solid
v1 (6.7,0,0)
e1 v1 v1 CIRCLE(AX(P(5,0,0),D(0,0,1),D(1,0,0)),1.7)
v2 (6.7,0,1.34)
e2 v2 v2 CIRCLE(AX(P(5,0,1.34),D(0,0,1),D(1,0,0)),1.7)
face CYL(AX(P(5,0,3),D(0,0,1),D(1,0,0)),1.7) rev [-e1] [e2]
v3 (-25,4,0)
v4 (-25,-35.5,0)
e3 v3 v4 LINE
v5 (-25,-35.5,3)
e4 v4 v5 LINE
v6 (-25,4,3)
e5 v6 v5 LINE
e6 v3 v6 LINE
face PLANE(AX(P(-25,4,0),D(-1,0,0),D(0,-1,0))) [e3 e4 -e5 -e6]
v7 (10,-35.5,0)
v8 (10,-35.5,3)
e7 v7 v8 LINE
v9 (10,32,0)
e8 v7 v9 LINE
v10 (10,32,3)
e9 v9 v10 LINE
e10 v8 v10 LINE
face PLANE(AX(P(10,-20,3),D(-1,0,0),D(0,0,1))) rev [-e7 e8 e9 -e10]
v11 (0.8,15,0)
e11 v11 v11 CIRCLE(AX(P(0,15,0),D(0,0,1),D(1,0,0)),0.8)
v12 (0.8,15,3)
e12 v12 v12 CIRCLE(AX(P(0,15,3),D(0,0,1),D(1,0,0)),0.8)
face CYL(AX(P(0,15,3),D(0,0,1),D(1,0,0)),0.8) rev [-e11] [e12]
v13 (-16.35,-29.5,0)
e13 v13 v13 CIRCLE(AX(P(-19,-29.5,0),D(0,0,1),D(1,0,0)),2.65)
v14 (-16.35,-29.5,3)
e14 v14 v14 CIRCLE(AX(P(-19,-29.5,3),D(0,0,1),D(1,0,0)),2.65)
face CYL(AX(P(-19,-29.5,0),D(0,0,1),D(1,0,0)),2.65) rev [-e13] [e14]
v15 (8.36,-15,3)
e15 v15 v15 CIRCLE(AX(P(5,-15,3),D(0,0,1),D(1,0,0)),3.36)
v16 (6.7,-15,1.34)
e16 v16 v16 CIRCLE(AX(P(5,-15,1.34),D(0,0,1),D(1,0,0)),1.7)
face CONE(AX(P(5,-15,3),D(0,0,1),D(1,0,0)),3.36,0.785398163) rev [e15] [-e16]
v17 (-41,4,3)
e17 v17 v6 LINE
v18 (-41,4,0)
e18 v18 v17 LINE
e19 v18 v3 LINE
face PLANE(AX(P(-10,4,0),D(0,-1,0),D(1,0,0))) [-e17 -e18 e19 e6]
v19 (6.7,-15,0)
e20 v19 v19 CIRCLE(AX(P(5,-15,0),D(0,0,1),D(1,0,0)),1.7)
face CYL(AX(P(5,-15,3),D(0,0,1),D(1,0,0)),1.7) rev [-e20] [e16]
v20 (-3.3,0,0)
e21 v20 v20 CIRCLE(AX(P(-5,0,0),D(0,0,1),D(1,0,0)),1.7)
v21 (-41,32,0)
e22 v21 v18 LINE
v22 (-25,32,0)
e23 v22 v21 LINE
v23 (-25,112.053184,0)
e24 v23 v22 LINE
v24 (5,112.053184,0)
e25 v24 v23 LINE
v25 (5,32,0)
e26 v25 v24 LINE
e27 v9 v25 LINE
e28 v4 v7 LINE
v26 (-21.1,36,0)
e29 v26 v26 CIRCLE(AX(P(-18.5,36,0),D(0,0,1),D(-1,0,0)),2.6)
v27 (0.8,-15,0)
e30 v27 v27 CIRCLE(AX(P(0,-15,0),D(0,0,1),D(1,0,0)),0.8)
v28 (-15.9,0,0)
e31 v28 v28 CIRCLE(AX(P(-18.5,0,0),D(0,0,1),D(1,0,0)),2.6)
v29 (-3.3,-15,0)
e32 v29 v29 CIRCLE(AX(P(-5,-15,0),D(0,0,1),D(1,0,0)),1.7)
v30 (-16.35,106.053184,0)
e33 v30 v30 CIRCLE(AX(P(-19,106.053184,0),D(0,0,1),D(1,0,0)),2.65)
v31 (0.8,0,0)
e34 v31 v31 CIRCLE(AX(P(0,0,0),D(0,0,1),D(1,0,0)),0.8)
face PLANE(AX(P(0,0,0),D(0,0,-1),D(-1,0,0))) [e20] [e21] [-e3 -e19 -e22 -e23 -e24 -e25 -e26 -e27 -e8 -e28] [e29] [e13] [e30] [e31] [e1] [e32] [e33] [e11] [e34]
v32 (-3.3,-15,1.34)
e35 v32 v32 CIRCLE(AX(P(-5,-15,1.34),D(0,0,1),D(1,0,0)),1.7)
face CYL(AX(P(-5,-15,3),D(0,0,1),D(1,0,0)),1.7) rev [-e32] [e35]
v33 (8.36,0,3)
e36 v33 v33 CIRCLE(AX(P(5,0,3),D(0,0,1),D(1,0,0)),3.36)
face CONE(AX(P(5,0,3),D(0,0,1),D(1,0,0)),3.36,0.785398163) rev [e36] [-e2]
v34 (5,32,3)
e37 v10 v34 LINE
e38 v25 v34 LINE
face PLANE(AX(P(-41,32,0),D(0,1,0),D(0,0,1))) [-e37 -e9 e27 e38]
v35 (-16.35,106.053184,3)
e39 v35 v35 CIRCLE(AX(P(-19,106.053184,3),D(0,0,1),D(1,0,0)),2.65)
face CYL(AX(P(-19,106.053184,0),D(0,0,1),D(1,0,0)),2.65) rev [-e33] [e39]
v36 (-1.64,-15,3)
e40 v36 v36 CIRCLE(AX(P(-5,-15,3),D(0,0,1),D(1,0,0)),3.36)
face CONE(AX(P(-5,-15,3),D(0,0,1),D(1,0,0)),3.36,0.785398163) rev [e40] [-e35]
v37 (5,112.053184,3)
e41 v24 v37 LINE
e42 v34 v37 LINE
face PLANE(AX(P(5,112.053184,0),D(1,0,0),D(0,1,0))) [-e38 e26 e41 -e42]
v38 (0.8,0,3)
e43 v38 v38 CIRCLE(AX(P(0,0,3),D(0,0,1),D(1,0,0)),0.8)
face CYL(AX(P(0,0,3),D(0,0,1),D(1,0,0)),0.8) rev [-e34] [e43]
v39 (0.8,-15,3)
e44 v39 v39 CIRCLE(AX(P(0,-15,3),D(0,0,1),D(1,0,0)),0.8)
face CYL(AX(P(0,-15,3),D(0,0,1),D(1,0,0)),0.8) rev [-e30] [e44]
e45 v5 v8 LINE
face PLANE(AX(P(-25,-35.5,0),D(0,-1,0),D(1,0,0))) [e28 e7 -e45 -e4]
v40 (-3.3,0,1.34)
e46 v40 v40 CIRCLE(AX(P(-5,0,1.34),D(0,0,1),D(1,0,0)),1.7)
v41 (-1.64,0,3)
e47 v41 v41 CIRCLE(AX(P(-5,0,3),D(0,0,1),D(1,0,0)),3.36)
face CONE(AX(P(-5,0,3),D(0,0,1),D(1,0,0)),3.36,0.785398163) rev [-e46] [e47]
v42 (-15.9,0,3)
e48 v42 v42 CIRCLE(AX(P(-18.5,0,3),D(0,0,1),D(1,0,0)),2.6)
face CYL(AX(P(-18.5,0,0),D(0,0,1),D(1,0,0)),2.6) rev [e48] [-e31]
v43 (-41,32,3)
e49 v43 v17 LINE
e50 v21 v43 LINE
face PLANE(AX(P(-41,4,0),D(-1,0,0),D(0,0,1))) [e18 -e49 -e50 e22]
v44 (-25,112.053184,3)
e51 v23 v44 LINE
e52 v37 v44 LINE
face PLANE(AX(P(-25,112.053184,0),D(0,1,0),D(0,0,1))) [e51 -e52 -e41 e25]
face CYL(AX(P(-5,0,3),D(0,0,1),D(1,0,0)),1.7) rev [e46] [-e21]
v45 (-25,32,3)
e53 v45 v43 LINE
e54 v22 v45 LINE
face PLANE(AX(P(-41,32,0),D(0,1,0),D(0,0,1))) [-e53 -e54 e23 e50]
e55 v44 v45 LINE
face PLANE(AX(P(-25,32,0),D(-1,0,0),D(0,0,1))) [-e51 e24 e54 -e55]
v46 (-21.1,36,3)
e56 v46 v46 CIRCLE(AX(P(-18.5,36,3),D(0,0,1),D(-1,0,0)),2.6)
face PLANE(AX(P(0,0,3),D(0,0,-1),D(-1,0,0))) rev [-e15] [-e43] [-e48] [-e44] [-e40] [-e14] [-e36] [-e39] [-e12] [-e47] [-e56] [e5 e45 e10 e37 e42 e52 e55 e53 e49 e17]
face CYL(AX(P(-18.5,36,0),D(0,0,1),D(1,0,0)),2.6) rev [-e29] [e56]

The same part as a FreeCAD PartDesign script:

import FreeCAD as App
import Part
import Sketcher

V = App.Vector
Q = App.Units.Quantity


def add_polygon(sketch, points):
    """Adds a closed chain of lines whose ends are joined by coincident constraints."""
    first, n = sketch.GeometryCount, len(points)
    for a, b in zip(points, points[1:] + points[:1]):
        sketch.addGeometry(Part.LineSegment(App.Vector(*a, 0), App.Vector(*b, 0)), False)
    for i in range(n):
        sketch.addConstraint(Sketcher.Constraint("Coincident", first + i, 2, first + (i + 1) % n, 1))

doc = App.newDocument("Part")
body = doc.addObject("PartDesign::Body", "Body")

sketch1 = body.newObject("Sketcher::SketchObject", "Sketch")
sketch1.AttachmentSupport = (doc.getObject("XY_Plane"), [""])
sketch1.MapMode = "FlatFace"
add_polygon(sketch1, [(-10, 20), (-10, -20), (10, -20), (10, 20)])
sketch1.addConstraint([
    Sketcher.Constraint("Vertical", 0),
    Sketcher.Constraint("Horizontal", 1),
    Sketcher.Constraint("Vertical", 2),
    Sketcher.Constraint("Horizontal", 3),
    Sketcher.Constraint("Symmetric", 0, 2, 2, 2, -1, 1),
    Sketcher.Constraint("DistanceX", 1, 1, 1, 2, 20.0),
    Sketcher.Constraint("DistanceY", 0, 2, 0, 1, 40.0),
])
pad1 = body.newObject("PartDesign::Pad", "Pad")
pad1.Profile = sketch1
pad1.Length = 3

sketch2 = body.newObject("Sketcher::SketchObject", "Sketch001")
sketch2.AttachmentSupport = (doc.getObject("YZ_Plane"), [""])
sketch2.MapMode = "FlatFace"
sketch2.AttachmentOffset = App.Placement(V(0, 0, -5), App.Rotation())
add_polygon(sketch2, [(0, 0), (0, 3), (-3.4, 3), (-1.7, 1.3), (-1.7, 0)])
sketch2.addConstraint([
    Sketcher.Constraint("Vertical", 0),
    Sketcher.Constraint("Horizontal", 1),
    Sketcher.Constraint("Vertical", 3),
    Sketcher.Constraint("Horizontal", 4),
    Sketcher.Constraint("Coincident", 4, 2, -1, 1),
    Sketcher.Constraint("DistanceY", 0, 1, 0, 2, 3.0),
    Sketcher.Constraint("Angle", 2, Q("-45 deg")),
    Sketcher.Constraint("DistanceX", 4, 1, 4, 2, 1.7),
    Sketcher.Constraint("DistanceX", 1, 2, 1, 1, 3.36),
])
groove = body.newObject("PartDesign::Groove", "Groove")
groove.Profile = sketch2
groove.ReferenceAxis = (sketch2, ["V_Axis"])
groove.Angle = 360
doc.recompute()

linearpattern = body.newObject("PartDesign::LinearPattern", "LinearPattern")
linearpattern.Originals = [groove]
linearpattern.Direction = (doc.getObject("X_Axis"), [""])
linearpattern.Mode = "offset"
linearpattern.Offset = 10
linearpattern.Occurrences = 2
body.Tip = linearpattern
doc.recompute()

datumline = body.newObject("PartDesign::Line", "DatumLine")
datumline.Placement = App.Placement(V(0, 0, 0), App.Rotation(V(0, 0, 1), V(0.554700196, -0.832050294, 0)))
linearpattern2 = body.newObject("PartDesign::LinearPattern", "LinearPattern001")
linearpattern2.Originals = [groove]
linearpattern2.Direction = (datumline, [""])
linearpattern2.Mode = "offset"
linearpattern2.Offset = 18.027756
linearpattern2.Occurrences = 2
body.Tip = linearpattern2
doc.recompute()

linearpattern3 = body.newObject("PartDesign::LinearPattern", "LinearPattern002")
linearpattern3.Originals = [groove]
linearpattern3.Direction = (doc.getObject("Y_Axis"), [""])
linearpattern3.Mode = "offset"
linearpattern3.Offset = 15
linearpattern3.Occurrences = 2
linearpattern3.Reversed = True
body.Tip = linearpattern3

sketch3 = body.newObject("Sketcher::SketchObject", "Sketch002")
sketch3.AttachmentSupport = (doc.getObject("XY_Plane"), [""])
sketch3.MapMode = "FlatFace"
sketch3.AttachmentOffset = App.Placement(V(0, 0, 3), App.Rotation())
sketch3.addGeometry([
    Part.Circle(V(0, 15, 0), V(0, 0, 1), 0.8),
    Part.Circle(V(0, 0, 0), V(0, 0, 1), 0.8),
    Part.Circle(V(0, -15, 0), V(0, 0, 1), 0.8),
], False)
sketch3.addConstraint([
    Sketcher.Constraint("Coincident", 1, 3, -1, 1),
    Sketcher.Constraint("Equal", 0, 1),
    Sketcher.Constraint("Equal", 1, 2),
    Sketcher.Constraint("Symmetric", 0, 3, 2, 3, -1, 1),
    Sketcher.Constraint("PointOnObject", 0, 3, -2),
    Sketcher.Constraint("Diameter", 0, 1.6),
    Sketcher.Constraint("DistanceY", -1, 1, 0, 3, 15.0),
])
doc.recompute()
hole = body.newObject("PartDesign::Hole", "Hole")
hole.Profile = sketch3
hole.ThreadType = "None"
hole.Diameter = 1.6
hole.DepthType = "ThroughAll"

sketch4 = body.newObject("Sketcher::SketchObject", "Sketch003")
sketch4.AttachmentSupport = (doc.getObject("XY_Plane"), [""])
sketch4.MapMode = "FlatFace"
sketch4.AttachmentOffset = App.Placement(V(0, 0, 3), App.Rotation())
add_polygon(sketch4, [(-41, 4), (-10, 4), (-10, 20), (10, 20), (10, 32), (-41, 32)])
sketch4.addConstraint([
    Sketcher.Constraint("Horizontal", 0),
    Sketcher.Constraint("Vertical", 1),
    Sketcher.Constraint("Horizontal", 2),
    Sketcher.Constraint("Vertical", 3),
    Sketcher.Constraint("Horizontal", 4),
    Sketcher.Constraint("Vertical", 5),
    Sketcher.Constraint("DistanceX", 0, 1, 0, 2, 31.0),
    Sketcher.Constraint("DistanceX", 2, 1, 2, 2, 20.0),
    Sketcher.Constraint("DistanceY", 1, 1, 1, 2, 16.0),
    Sketcher.Constraint("DistanceY", 3, 1, 3, 2, 12.0),
    Sketcher.Constraint("DistanceX", 0, 2, -1, 1, 10.0),
    Sketcher.Constraint("DistanceY", -1, 1, 0, 2, 4.0),
])
pad2 = body.newObject("PartDesign::Pad", "Pad001")
pad2.Profile = sketch4
pad2.Length = 3
pad2.Reversed = True

sketch5 = body.newObject("Sketcher::SketchObject", "Sketch004")
sketch5.AttachmentSupport = (doc.getObject("XY_Plane"), [""])
sketch5.MapMode = "FlatFace"
sketch5.AttachmentOffset = App.Placement(V(0, 0, 3), App.Rotation())
add_polygon(sketch5, [(-25, 112.1), (-25, 32), (5, 32), (5, 112.1)])
sketch5.addGeometry(Part.Circle(V(-19, 106.1, 0), V(0, 0, 1), 2.6), False)
sketch5.addConstraint([
    Sketcher.Constraint("Vertical", 0),
    Sketcher.Constraint("Horizontal", 1),
    Sketcher.Constraint("Vertical", 2),
    Sketcher.Constraint("Horizontal", 3),
    Sketcher.Constraint("Diameter", 4, 5.3),
    Sketcher.Constraint("DistanceX", 1, 1, 1, 2, 30.0),
    Sketcher.Constraint("DistanceX", 4, 3, -1, 1, 19.0),
    Sketcher.Constraint("DistanceX", 0, 2, -1, 1, 25.0),
    Sketcher.Constraint("DistanceY", -1, 1, 0, 2, 32.0),
    Sketcher.Constraint("DistanceY", 4, 3, 2, 2, 6.0),
    Sketcher.Constraint("DistanceY", 0, 2, 0, 1, 80.053184),
])
pad3 = body.newObject("PartDesign::Pad", "Pad002")
pad3.Profile = sketch5
pad3.Length = 3
pad3.Reversed = True

sketch6 = body.newObject("Sketcher::SketchObject", "Sketch005")
sketch6.AttachmentSupport = (doc.getObject("XY_Plane"), [""])
sketch6.MapMode = "FlatFace"
sketch6.AttachmentOffset = App.Placement(V(0, 0, 3), App.Rotation())
add_polygon(sketch6, [(-25, 4), (-25, -35.5), (10, -35.5), (10, -20), (-10, -20), (-10, 4)])
sketch6.addGeometry(Part.Circle(V(-19, -29.5, 0), V(0, 0, 1), 2.6), False)
sketch6.addConstraint([
    Sketcher.Constraint("Vertical", 0),
    Sketcher.Constraint("Horizontal", 1),
    Sketcher.Constraint("Vertical", 2),
    Sketcher.Constraint("Horizontal", 3),
    Sketcher.Constraint("Vertical", 4),
    Sketcher.Constraint("Horizontal", 5),
    Sketcher.Constraint("Diameter", 6, 5.3),
    Sketcher.Constraint("DistanceX", 1, 1, 1, 2, 35.0),
    Sketcher.Constraint("DistanceX", 3, 2, 3, 1, 20.0),
    Sketcher.Constraint("DistanceY", 4, 1, 4, 2, 24.0),
    Sketcher.Constraint("DistanceY", 0, 2, 0, 1, 39.5),
    Sketcher.Constraint("DistanceX", 6, 3, -1, 1, 19.0),
    Sketcher.Constraint("DistanceX", 0, 2, -1, 1, 25.0),
    Sketcher.Constraint("DistanceY", 2, 2, -1, 1, 20.0),
    Sketcher.Constraint("DistanceY", 0, 2, 6, 3, 6.0),
])
pad4 = body.newObject("PartDesign::Pad", "Pad003")
pad4.Profile = sketch6
pad4.Length = 3
pad4.Reversed = True

sketch7 = body.newObject("Sketcher::SketchObject", "Sketch006")
sketch7.AttachmentSupport = (doc.getObject("XY_Plane"), [""])
sketch7.MapMode = "FlatFace"
sketch7.AttachmentOffset = App.Placement(V(0, 0, 3), App.Rotation())
sketch7.addGeometry([
    Part.Circle(V(-18.5, 0, 0), V(0, 0, 1), 2.6),
    Part.Circle(V(-18.5, 36, 0), V(0, 0, 1), 2.6),
], False)
sketch7.addConstraint([
    Sketcher.Constraint("Equal", 0, 1),
    Sketcher.Constraint("PointOnObject", 0, 3, -1),
    Sketcher.Constraint("Vertical", 0, 3, 1, 3),
    Sketcher.Constraint("Diameter", 0, 5.2),
    Sketcher.Constraint("DistanceY", -1, 1, 1, 3, 36.0),
    Sketcher.Constraint("DistanceX", 0, 3, -1, 1, 18.5),
])
pocket1 = body.newObject("PartDesign::Pocket", "Pocket")
pocket1.Profile = sketch7
pocket1.Type = "ThroughAll"

doc.recompute()
